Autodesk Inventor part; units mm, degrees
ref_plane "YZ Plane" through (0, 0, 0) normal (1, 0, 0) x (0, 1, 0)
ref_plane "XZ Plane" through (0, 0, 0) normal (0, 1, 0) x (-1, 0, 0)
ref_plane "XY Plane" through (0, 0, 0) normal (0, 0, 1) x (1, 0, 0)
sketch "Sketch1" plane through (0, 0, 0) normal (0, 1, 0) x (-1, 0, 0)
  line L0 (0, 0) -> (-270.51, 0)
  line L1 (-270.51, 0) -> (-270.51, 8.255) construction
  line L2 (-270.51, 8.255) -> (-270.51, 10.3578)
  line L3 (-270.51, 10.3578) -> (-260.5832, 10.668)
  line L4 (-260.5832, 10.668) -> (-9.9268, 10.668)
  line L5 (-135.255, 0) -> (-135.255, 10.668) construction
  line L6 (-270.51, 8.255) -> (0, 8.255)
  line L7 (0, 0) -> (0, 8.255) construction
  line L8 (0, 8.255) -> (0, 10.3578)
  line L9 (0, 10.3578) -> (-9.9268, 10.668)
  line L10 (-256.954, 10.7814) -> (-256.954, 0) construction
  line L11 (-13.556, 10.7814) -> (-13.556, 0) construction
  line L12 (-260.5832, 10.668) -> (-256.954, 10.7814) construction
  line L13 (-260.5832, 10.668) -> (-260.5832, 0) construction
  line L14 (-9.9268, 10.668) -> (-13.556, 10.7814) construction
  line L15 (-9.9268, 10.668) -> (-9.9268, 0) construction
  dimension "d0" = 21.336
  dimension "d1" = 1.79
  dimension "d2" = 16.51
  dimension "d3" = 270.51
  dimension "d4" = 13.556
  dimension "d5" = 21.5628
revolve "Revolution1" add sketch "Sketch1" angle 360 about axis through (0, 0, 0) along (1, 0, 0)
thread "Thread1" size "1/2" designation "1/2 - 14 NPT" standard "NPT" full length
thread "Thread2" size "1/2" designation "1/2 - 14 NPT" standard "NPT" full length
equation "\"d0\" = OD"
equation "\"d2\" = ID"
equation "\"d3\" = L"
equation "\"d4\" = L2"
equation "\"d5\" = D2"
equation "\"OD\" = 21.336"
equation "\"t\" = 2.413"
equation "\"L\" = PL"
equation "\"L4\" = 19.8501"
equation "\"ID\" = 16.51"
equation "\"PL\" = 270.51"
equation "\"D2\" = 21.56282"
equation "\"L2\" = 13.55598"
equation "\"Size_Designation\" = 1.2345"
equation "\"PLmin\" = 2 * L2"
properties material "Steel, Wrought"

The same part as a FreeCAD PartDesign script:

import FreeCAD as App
import Part
import Sketcher
Q = App.Units.Quantity


def add_polygon(sketch, points):
    """Adds a closed chain of lines whose ends are joined by coincident constraints."""
    first, n = sketch.GeometryCount, len(points)
    for a, b in zip(points, points[1:] + points[:1]):
        sketch.addGeometry(Part.LineSegment(App.Vector(*a, 0), App.Vector(*b, 0)), False)
    for i in range(n):
        sketch.addConstraint(Sketcher.Constraint("Coincident", first + i, 2, first + (i + 1) % n, 1))

doc = App.newDocument("Part")
body = doc.addObject("PartDesign::Body", "Body")

# Sketch on XZ plane
sketch1 = doc.addObject("Sketcher::SketchObject", "Sketch")
body.addObject(sketch1)
sketch1.AttachmentSupport = (doc.XZ_Plane, [""])
sketch1.MapMode = "FlatFace"
add_polygon(sketch1, [(270.5, 10.4), (270.5, 8.3), (0, 8.3), (0, 10.4), (9.9, 10.7), (260.6, 10.7)])  # lines 0-5
sketch1.addConstraint([
    Sketcher.Constraint("Vertical", 0),
    Sketcher.Constraint("Horizontal", 1),
    Sketcher.Constraint("Vertical", 2),
    Sketcher.Constraint("Horizontal", 4),
    Sketcher.Constraint("PointOnObject", 1, 2, -2),
    Sketcher.Constraint("Horizontal", 2, 2, 5, 2),
    Sketcher.Constraint("Equal", 3, 5),
    Sketcher.Constraint("DistanceX", 1, 2, 1, 1, Q("10.65 in")),
    Sketcher.Constraint("Angle", 3, Q("1.7898 deg")),
    Sketcher.Constraint("DistanceY", -1, 1, 3, 2, Q("0.42 in")),
    Sketcher.Constraint("Distance", 3, Q("0.391 in")),
    Sketcher.Constraint("DistanceY", -1, 1, 0, 2, Q("0.325 in")),
])
revolution = doc.addObject("PartDesign::Revolution", "Revolution")
body.addObject(revolution)
revolution.Profile = sketch1
revolution.ReferenceAxis = (sketch1, ["H_Axis"])
revolution.Angle = 360

doc.recompute()
